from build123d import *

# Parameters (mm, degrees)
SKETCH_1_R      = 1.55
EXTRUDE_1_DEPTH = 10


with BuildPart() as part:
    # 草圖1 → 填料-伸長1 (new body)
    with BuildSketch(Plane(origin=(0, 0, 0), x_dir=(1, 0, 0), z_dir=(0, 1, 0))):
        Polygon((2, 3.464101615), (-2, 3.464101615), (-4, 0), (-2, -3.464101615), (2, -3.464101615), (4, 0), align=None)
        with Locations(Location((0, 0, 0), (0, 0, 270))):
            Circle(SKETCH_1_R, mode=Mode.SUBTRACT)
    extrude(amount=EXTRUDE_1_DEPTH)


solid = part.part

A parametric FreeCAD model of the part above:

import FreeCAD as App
import Part
import Sketcher

V = App.Vector
Q = App.Units.Quantity

doc = App.newDocument("Part")
body = doc.addObject("PartDesign::Body", "Body")

# Sketch on XZ plane
sketch1 = body.newObject("Sketcher::SketchObject", "Sketch")
sketch1.AttachmentSupport = (doc.getObject("XZ_Plane"), [""])
sketch1.MapMode = "FlatFace"
sketch1.addGeometry([
    Part.LineSegment(V(2, -3.5, 0), V(-2, -3.5, 0)),  # 0
    Part.LineSegment(V(-2, -3.5, 0), V(-4, 0, 0)),  # 1
    Part.LineSegment(V(-4, 0, 0), V(-2, 3.5, 0)),  # 2
    Part.LineSegment(V(-2, 3.5, 0), V(2, 3.5, 0)),  # 3
    Part.LineSegment(V(2, 3.5, 0), V(4, 0, 0)),  # 4
    Part.LineSegment(V(4, 0, 0), V(2, -3.5, 0)),  # 5
    Part.Circle(V(0, 0, 0), V(0, 0, 1), 1.6),  # 6
], False)
sketch1.addConstraint([
    Sketcher.Constraint("Coincident", 0, 2, 1, 1),
    Sketcher.Constraint("Coincident", 1, 2, 2, 1),
    Sketcher.Constraint("Coincident", 2, 2, 3, 1),
    Sketcher.Constraint("Coincident", 3, 2, 4, 1),
    Sketcher.Constraint("Coincident", 4, 2, 5, 1),
    Sketcher.Constraint("Coincident", 5, 2, 0, 1),
    Sketcher.Constraint("Horizontal", 0),
    Sketcher.Constraint("Horizontal", 3),
    Sketcher.Constraint("Coincident", 6, 3, -1, 1),
    Sketcher.Constraint("Symmetric", 0, 2, 3, 2, -1, 1),
    Sketcher.Constraint("Symmetric", 1, 2, 4, 2, -1, 1),
    Sketcher.Constraint("PointOnObject", 1, 2, -1),
    Sketcher.Constraint("Parallel", 2, 5),
    Sketcher.Constraint("Vertical", 0, 2, 2, 2),
    Sketcher.Constraint("Diameter", 6, Q("3.1 mm")),
    Sketcher.Constraint("DistanceX", 0, 2, 0, 1, Q("4 mm")),
    Sketcher.Constraint("Angle", 1, Q("120 deg")),
    Sketcher.Constraint("Distance", 1, Q("4 mm")),
])
pad1 = body.newObject("PartDesign::Pad", "Pad")
pad1.Profile = sketch1
pad1.Length = 10
pad1.Reversed = True

doc.recompute()
